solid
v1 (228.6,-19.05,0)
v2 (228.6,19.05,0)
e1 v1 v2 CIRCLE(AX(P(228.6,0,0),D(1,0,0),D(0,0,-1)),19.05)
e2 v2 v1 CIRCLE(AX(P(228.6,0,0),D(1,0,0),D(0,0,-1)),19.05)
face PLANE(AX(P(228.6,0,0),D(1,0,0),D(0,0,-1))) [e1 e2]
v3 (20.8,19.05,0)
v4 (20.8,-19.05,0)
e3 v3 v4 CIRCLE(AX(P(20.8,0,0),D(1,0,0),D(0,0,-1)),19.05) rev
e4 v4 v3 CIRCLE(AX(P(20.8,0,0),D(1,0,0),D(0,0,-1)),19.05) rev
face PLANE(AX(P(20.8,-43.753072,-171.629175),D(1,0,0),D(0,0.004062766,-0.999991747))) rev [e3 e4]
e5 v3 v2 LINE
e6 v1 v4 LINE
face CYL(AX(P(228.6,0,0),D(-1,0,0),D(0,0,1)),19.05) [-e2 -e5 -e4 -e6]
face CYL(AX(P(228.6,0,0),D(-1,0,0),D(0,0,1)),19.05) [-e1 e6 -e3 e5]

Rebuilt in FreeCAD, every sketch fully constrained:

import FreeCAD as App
import Part
import Sketcher
from FreeCAD import Vector
Q = App.Units.Quantity

doc = App.newDocument("Part")
body = doc.addObject("PartDesign::Body", "Body")

sketch1 = body.newObject("Sketcher::SketchObject", "Sketch")
sketch1.AttachmentSupport = (doc.getObject("YZ_Plane"), [""])
sketch1.MapMode = "FlatFace"
sketch1.addGeometry(Part.Circle(Vector(0, 0, 0), Vector(0, 0, 1), 19.05), False)
sketch1.addConstraint([
    Sketcher.Constraint("Coincident", 0, 3, -1, 1),
    Sketcher.Constraint("Diameter", 0, Q("1.5 in")),
])
pad1 = body.newObject("PartDesign::Pad", "Pad")
pad1.Profile = sketch1
pad1.Length = Q("9 in")

sketch2 = body.newObject("Sketcher::SketchObject", "Sketch001")
sketch2.AttachmentSupport = (doc.getObject("YZ_Plane"), [""])
sketch2.MapMode = "FlatFace"
sketch2.AttachmentOffset = App.Placement(Vector(0, 0, 20.8), App.Rotation())
sketch2.addGeometry(Part.Circle(Vector(0, 0, 0), Vector(0, 0, 1), 19.05), False)
sketch2.addConstraint([
    Sketcher.Constraint("Coincident", 0, 3, -1, 1),
    Sketcher.Constraint("Diameter", 0, Q("1.5 in")),
])
pocket1 = body.newObject("PartDesign::Pocket", "Pocket")
pocket1.Profile = sketch2
pocket1.Length = 20.8

doc.recompute()
